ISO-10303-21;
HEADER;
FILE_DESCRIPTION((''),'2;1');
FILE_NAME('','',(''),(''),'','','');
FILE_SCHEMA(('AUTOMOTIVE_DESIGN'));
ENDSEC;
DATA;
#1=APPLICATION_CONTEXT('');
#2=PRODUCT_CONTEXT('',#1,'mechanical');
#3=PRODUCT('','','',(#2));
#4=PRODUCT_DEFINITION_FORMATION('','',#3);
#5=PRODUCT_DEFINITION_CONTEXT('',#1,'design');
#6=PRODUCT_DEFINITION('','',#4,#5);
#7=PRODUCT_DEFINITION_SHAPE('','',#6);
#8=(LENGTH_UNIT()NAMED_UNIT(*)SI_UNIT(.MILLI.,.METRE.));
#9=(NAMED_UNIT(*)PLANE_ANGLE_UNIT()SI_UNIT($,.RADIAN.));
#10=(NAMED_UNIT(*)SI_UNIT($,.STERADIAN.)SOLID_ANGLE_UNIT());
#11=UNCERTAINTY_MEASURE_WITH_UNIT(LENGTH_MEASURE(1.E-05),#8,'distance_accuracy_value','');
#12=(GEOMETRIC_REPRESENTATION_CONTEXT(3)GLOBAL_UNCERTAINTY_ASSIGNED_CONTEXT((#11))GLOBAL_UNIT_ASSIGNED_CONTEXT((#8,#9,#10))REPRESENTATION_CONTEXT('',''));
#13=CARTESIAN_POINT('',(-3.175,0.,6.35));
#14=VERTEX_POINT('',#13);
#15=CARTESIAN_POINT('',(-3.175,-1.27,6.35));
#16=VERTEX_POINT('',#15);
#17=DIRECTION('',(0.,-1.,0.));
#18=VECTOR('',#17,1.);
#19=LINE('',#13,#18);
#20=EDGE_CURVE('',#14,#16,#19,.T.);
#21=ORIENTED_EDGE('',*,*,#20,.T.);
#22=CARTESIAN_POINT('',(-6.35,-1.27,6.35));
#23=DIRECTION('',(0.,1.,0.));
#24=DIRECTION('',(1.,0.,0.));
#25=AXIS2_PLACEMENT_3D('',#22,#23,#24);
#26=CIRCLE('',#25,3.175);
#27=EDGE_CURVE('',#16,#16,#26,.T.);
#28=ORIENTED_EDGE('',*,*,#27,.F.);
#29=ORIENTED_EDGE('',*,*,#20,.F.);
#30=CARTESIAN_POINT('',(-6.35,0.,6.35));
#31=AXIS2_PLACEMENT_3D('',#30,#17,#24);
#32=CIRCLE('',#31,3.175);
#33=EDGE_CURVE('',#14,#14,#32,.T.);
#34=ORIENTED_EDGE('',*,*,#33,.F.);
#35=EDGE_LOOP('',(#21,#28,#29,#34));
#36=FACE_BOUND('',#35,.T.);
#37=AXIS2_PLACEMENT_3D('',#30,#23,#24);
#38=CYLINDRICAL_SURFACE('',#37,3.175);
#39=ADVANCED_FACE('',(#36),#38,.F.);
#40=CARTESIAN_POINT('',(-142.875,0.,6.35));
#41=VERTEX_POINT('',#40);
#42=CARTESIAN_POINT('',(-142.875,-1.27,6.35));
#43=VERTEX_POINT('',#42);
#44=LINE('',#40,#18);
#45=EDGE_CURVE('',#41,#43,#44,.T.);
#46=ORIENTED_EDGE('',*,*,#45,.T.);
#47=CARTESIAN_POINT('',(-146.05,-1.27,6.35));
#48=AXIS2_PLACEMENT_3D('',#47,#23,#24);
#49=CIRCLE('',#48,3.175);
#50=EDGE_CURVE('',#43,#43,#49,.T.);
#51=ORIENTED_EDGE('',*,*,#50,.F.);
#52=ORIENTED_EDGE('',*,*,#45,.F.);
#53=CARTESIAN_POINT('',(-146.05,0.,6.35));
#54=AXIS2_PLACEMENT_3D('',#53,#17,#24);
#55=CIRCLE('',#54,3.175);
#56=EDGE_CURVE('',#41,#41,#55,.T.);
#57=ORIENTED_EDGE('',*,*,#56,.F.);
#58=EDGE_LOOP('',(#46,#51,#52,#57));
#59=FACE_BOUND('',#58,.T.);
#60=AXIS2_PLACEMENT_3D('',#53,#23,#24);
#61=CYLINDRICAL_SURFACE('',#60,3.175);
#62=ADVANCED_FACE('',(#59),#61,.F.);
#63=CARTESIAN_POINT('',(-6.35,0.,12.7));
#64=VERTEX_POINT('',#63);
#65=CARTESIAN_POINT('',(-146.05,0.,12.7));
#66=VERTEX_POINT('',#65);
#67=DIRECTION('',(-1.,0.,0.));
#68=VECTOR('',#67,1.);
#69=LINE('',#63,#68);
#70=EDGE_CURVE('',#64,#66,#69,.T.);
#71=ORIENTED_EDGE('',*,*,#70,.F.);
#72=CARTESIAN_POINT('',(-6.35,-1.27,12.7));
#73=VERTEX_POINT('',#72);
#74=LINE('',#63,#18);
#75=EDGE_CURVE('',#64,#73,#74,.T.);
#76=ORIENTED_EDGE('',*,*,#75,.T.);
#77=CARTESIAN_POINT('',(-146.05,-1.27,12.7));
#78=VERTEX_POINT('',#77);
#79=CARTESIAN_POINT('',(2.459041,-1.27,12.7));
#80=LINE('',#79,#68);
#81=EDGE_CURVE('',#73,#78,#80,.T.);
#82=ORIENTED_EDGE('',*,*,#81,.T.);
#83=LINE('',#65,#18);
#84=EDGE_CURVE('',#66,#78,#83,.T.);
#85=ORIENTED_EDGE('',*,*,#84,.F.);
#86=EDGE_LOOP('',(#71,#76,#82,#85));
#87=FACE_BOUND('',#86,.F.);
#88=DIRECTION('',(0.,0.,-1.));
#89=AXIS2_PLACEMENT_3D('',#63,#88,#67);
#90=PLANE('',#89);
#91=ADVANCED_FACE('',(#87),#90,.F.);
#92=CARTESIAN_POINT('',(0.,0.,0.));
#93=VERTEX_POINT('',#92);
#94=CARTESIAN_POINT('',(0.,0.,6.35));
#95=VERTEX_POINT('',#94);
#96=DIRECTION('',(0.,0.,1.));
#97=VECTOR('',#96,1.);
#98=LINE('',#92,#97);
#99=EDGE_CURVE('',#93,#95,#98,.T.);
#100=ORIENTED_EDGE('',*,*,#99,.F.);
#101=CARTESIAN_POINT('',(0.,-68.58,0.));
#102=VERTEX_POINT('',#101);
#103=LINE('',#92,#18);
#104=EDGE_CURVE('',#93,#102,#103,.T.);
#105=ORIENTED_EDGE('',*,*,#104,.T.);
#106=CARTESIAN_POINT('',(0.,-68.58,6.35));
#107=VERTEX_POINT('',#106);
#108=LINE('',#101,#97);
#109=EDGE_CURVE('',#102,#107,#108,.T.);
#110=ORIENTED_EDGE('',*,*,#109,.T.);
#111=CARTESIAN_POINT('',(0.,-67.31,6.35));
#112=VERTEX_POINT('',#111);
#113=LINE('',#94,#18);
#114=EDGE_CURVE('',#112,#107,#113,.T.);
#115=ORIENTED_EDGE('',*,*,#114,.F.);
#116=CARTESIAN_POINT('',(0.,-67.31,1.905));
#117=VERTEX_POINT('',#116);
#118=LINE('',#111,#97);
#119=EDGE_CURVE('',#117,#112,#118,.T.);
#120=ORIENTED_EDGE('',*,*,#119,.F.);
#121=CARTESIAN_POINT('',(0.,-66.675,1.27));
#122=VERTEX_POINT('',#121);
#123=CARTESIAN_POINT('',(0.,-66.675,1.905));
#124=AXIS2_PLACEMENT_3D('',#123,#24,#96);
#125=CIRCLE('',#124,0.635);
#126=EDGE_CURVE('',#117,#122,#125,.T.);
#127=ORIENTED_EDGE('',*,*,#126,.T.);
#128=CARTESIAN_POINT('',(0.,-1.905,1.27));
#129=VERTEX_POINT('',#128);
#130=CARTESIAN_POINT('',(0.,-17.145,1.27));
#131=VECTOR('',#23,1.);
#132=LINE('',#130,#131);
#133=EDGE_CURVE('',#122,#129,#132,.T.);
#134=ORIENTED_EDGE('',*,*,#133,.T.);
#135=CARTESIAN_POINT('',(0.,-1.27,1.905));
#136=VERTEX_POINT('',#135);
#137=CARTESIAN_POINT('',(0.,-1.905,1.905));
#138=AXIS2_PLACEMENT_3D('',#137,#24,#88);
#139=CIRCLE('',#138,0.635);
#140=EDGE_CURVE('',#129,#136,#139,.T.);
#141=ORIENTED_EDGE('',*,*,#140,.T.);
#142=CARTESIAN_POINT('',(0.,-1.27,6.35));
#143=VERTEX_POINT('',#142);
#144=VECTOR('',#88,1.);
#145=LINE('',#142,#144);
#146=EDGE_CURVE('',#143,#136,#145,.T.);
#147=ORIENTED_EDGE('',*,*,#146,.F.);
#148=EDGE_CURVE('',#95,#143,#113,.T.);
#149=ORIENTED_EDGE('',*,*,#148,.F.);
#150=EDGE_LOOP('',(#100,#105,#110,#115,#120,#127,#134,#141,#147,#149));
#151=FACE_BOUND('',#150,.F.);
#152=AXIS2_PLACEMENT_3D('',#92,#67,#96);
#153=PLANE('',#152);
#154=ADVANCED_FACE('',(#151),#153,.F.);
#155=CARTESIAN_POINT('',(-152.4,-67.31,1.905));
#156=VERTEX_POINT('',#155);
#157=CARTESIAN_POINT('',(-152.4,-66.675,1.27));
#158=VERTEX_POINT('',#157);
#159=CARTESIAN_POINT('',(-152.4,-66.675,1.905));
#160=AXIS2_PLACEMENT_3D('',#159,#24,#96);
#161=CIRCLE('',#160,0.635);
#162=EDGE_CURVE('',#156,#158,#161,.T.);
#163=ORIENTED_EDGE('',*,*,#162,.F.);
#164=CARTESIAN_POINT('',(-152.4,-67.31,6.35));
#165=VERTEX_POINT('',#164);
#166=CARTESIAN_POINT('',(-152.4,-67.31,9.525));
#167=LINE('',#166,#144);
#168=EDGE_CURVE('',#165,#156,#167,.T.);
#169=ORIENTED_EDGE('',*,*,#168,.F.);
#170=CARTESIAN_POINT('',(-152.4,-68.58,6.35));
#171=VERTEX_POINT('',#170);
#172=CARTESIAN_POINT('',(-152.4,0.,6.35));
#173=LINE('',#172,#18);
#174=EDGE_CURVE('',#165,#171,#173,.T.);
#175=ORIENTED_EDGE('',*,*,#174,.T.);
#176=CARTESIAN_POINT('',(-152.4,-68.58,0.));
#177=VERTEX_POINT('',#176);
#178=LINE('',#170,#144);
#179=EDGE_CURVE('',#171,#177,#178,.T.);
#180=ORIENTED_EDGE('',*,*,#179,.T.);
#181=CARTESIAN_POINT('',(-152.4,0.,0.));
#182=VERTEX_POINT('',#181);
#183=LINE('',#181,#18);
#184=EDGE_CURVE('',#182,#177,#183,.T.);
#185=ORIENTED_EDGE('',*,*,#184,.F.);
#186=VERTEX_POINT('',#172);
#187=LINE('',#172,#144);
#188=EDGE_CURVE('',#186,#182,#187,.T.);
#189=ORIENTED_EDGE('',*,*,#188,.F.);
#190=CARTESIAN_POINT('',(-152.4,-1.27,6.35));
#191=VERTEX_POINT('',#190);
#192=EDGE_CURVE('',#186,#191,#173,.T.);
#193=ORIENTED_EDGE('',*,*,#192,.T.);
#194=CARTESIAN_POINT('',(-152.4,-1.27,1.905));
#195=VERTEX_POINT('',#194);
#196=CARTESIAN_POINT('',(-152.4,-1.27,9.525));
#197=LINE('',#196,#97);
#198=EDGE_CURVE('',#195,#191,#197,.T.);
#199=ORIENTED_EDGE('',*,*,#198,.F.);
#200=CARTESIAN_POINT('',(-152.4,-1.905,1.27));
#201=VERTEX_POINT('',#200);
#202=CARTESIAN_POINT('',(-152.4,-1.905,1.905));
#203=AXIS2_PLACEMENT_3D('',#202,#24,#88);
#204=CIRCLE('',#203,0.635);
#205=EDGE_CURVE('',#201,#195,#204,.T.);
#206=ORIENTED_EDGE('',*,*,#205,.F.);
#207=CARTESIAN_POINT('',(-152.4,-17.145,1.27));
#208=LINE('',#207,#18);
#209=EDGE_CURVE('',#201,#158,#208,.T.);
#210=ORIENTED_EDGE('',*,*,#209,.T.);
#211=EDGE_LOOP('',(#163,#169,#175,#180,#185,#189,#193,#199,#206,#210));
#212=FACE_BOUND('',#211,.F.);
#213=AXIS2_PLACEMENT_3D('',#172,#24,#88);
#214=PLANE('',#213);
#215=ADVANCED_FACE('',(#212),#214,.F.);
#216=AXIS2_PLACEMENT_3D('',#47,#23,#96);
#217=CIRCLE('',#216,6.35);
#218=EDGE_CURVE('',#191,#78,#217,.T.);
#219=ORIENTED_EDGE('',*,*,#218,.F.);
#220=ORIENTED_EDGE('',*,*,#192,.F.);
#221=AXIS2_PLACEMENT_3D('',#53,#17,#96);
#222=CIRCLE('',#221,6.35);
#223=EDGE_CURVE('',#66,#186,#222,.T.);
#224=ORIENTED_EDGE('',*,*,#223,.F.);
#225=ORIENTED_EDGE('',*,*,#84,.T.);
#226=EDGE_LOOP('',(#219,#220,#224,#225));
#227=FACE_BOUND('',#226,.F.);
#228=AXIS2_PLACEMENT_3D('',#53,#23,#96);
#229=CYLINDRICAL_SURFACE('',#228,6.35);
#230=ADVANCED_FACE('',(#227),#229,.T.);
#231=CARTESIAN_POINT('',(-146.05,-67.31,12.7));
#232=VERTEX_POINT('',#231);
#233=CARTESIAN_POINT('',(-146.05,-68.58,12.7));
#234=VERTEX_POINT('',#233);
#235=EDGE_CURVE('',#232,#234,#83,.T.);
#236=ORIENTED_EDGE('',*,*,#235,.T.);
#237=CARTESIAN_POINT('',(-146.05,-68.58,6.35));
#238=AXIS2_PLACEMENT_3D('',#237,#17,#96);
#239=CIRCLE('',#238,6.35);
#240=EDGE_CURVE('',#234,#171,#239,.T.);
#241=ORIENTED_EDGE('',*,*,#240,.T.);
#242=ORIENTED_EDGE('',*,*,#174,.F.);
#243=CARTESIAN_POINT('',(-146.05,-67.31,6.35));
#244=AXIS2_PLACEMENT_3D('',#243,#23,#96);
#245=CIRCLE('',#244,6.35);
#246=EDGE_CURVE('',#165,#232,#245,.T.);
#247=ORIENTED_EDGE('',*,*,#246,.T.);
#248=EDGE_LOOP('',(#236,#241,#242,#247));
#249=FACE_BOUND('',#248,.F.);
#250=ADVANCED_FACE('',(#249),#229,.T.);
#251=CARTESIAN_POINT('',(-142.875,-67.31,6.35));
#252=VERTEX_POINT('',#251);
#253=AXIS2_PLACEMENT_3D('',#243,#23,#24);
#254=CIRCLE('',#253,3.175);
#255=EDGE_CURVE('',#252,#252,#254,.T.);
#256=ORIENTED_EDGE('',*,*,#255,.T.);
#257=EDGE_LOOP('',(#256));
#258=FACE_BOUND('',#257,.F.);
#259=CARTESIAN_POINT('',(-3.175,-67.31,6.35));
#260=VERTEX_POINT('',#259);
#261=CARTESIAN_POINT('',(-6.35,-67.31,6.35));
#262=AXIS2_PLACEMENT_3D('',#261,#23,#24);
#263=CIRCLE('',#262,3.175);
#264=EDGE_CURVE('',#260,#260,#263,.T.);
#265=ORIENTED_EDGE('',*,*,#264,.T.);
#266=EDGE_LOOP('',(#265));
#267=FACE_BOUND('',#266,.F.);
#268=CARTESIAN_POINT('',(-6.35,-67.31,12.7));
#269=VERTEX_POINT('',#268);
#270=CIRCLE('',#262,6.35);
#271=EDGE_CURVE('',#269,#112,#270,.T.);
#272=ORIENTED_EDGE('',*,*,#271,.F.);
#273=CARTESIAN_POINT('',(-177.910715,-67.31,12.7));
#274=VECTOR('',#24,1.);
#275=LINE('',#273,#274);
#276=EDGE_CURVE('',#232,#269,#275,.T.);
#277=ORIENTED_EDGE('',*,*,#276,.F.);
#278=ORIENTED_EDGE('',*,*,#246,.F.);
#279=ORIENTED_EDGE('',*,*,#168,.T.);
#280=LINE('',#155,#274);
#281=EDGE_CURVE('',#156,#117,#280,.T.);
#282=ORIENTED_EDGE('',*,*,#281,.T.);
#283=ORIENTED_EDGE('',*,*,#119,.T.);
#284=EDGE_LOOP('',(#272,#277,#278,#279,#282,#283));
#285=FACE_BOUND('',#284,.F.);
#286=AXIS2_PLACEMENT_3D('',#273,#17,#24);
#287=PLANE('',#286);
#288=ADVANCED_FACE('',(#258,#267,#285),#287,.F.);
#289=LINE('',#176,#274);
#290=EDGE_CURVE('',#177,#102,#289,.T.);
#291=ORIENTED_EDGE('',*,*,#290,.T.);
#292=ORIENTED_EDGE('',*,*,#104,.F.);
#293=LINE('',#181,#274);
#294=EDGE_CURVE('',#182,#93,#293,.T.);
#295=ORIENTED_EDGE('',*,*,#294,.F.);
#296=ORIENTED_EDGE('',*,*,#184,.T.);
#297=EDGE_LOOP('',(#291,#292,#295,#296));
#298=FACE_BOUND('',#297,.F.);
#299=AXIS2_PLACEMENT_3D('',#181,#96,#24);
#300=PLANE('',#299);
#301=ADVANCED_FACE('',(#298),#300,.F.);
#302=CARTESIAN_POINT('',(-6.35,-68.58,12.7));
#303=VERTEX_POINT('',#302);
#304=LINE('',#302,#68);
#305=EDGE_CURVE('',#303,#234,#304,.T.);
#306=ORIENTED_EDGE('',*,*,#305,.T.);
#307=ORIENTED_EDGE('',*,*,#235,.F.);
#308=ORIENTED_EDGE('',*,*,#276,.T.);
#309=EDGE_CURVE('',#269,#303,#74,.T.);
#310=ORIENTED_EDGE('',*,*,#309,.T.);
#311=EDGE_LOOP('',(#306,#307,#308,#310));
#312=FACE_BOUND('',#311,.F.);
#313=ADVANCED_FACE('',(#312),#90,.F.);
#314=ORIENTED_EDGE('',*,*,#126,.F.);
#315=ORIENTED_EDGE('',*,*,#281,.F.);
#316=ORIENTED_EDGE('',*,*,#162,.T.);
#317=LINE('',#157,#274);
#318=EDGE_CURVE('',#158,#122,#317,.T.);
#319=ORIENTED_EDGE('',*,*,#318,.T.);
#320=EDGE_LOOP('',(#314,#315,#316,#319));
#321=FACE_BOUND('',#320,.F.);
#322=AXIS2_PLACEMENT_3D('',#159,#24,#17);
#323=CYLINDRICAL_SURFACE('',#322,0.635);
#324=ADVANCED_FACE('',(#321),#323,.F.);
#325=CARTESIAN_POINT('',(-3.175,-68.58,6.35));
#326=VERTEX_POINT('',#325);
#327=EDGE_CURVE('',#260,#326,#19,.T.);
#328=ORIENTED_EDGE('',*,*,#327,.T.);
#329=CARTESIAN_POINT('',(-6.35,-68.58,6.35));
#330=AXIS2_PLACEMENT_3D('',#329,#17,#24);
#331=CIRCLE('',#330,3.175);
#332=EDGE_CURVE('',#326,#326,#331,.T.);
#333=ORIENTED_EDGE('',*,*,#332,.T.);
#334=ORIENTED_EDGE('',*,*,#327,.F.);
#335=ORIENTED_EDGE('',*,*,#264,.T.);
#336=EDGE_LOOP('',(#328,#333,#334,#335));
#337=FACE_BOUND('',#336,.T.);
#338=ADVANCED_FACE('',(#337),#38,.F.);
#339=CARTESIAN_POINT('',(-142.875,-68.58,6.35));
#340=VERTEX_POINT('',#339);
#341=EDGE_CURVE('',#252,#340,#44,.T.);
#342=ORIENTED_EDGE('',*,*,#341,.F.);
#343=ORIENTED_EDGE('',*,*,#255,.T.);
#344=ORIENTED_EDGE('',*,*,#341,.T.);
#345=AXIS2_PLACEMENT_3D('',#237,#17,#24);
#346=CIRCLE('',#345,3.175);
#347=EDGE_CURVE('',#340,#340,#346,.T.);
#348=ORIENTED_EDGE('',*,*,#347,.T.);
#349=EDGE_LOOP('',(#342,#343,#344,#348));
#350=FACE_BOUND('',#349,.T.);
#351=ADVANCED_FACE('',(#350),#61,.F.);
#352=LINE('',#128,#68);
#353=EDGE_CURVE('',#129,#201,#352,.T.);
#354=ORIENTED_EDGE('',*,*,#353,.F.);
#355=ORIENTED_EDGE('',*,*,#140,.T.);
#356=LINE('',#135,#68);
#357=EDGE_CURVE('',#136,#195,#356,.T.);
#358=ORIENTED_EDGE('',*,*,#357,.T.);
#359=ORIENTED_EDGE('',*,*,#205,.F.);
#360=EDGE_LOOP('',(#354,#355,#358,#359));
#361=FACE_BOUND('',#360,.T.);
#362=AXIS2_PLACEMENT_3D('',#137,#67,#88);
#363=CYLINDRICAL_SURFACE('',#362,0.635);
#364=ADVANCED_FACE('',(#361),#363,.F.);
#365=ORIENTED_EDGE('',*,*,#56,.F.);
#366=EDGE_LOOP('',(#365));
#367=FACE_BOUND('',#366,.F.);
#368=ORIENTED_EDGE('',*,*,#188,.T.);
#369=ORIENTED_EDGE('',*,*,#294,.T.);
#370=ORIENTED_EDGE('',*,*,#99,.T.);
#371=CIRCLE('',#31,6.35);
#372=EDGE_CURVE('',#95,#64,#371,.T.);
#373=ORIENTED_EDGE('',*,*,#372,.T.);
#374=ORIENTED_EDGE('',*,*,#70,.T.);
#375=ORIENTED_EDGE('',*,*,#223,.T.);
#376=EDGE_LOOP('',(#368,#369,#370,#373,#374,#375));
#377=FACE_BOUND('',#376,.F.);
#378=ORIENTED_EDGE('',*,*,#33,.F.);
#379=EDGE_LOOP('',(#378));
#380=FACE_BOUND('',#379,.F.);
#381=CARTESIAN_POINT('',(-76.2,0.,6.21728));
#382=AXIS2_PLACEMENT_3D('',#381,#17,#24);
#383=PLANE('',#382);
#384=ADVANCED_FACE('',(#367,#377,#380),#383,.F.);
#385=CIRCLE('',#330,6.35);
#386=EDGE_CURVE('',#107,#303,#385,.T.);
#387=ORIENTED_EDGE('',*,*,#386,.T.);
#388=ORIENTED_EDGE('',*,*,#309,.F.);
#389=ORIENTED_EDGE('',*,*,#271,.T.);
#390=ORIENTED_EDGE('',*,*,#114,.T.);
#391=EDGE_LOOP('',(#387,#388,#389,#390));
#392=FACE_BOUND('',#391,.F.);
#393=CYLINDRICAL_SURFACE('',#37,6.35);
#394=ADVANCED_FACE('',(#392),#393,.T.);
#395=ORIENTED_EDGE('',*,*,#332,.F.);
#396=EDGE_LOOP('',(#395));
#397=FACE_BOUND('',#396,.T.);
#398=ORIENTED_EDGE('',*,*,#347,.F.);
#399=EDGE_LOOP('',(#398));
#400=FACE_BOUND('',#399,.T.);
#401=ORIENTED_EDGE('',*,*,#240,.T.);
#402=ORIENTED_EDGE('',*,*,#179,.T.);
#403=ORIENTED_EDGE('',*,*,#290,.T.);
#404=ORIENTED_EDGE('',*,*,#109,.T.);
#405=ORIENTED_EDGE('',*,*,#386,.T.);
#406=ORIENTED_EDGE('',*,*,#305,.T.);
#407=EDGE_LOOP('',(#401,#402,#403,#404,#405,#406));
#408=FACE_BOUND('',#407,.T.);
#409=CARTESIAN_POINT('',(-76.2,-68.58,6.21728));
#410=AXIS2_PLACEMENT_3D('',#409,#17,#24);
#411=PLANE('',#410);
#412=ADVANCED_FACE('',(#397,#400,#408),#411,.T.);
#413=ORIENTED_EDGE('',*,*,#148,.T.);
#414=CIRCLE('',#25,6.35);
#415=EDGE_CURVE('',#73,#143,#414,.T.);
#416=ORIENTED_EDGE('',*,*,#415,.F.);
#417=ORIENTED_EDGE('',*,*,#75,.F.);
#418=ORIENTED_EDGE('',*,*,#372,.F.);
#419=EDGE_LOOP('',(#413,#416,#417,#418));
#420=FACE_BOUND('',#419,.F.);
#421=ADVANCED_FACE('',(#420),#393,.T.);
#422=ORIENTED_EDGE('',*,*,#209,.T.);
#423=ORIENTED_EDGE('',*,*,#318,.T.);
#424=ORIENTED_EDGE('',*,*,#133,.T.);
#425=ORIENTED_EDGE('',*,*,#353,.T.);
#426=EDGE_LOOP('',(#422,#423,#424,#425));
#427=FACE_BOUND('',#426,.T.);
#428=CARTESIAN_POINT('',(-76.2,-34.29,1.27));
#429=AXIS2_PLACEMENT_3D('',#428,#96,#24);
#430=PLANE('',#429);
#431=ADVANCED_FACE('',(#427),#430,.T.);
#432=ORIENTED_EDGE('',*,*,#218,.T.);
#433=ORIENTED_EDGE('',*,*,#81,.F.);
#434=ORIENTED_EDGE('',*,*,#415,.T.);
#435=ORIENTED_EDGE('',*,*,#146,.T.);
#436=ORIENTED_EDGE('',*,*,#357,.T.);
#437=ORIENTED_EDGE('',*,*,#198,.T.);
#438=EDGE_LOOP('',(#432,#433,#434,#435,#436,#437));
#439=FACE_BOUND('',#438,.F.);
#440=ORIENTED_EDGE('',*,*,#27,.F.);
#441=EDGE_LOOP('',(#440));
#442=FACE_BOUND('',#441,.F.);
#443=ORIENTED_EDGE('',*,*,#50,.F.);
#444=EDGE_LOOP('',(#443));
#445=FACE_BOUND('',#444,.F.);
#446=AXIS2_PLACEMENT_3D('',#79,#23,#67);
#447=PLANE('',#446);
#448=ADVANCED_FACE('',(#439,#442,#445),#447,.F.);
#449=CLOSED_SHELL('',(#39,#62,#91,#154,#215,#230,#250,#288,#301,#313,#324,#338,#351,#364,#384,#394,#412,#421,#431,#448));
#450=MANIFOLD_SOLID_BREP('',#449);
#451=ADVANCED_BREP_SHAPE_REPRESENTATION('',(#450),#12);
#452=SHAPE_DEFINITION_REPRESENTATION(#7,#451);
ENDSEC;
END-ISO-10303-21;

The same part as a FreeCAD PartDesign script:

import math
import FreeCAD as App
import Part
import Sketcher

V = App.Vector
Q = App.Units.Quantity


def edges_at(feature, points):
    """Names of the edges that pass closest to the given points."""
    edges = feature.Shape.Edges
    near = lambda p: min(range(len(edges)), key=lambda i: edges[i].distToShape(Part.Vertex(*p))[0])
    return sorted({f"Edge{near(p) + 1}" for p in points})

doc = App.newDocument("Part")
body = doc.addObject("PartDesign::Body", "Body")

# Sketch on XZ plane
sketch1 = doc.addObject("Sketcher::SketchObject", "Sketch")
body.addObject(sketch1)
sketch1.AttachmentSupport = (doc.XZ_Plane, [""])
sketch1.MapMode = "FlatFace"
sketch1.addGeometry([
    Part.LineSegment(V(-152.4, 0, 0), V(0, 0, 0)),  # 0
    Part.LineSegment(V(0, 0, 0), V(0, 6.3, 0)),  # 1
    Part.ArcOfCircle(Part.Circle(V(-6.3, 6.3, 0), V(0, 0, 1), 6.3), math.radians(0), math.radians(90)),  # 2
    Part.LineSegment(V(-6.3, 12.7, 0), V(-146.1, 12.7, 0)),  # 3
    Part.ArcOfCircle(Part.Circle(V(-146.1, 6.3, 0), V(0, 0, 1), 6.3), math.radians(90), math.radians(180)),  # 4
    Part.LineSegment(V(-152.4, 6.3, 0), V(-152.4, 0, 0)),  # 5
    Part.Circle(V(-146.1, 6.3, 0), V(0, 0, 1), 3.2),  # 6
    Part.Circle(V(-6.3, 6.3, 0), V(0, 0, 1), 3.2),  # 7
], False)
sketch1.addConstraint([
    Sketcher.Constraint("Coincident", 0, 2, 1, 1),
    Sketcher.Constraint("Tangent", 1, 2, 2, 1),
    Sketcher.Constraint("Tangent", 2, 2, 3, 1),
    Sketcher.Constraint("Tangent", 3, 2, 4, 1),
    Sketcher.Constraint("Tangent", 4, 2, 5, 1),
    Sketcher.Constraint("Coincident", 5, 2, 0, 1),
    Sketcher.Constraint("Horizontal", 0),
    Sketcher.Constraint("Vertical", 1),
    Sketcher.Constraint("Horizontal", 3),
    Sketcher.Constraint("Vertical", 5),
    Sketcher.Constraint("Coincident", 0, 2, -1, 1),
    Sketcher.Constraint("Coincident", 6, 3, 4, 3),
    Sketcher.Constraint("Coincident", 7, 3, 2, 3),
    Sketcher.Constraint("Equal", 2, 4),
    Sketcher.Constraint("Equal", 6, 7),
    Sketcher.Constraint("Diameter", 6, Q("0.25 in")),
    Sketcher.Constraint("DistanceX", 0, 1, 0, 2, Q("6 in")),
    Sketcher.Constraint("Radius", 2, Q("0.25 in")),
    Sketcher.Constraint("DistanceY", 1, 1, 1, 2, Q("0.25 in")),
])
pad1 = doc.addObject("PartDesign::Pad", "Pad")
body.addObject(pad1)
pad1.Profile = sketch1
pad1.Length = Q("2.7 in")

# Sketch on XY plane
sketch2 = doc.addObject("Sketcher::SketchObject", "Sketch001")
body.addObject(sketch2)
sketch2.AttachmentSupport = (doc.XY_Plane, [""])
sketch2.MapMode = "FlatFace"
sketch2.AttachmentOffset = App.Placement(V(0, 0, 0.5 * 25.4), App.Rotation())
sketch2.addGeometry([
    Part.LineSegment(V(-178, -1, 0), V(-178, -67, 0)),
    Part.LineSegment(V(-178, -67, 0), V(2, -67, 0)),
    Part.LineSegment(V(2, -67, 0), V(2, -1, 0)),
    Part.LineSegment(V(2, -1, 0), V(-178, -1, 0)),
], False)
sketch2.addConstraint([
    Sketcher.Constraint("Coincident", 0, 2, 1, 1),
    Sketcher.Constraint("Coincident", 1, 2, 2, 1),
    Sketcher.Constraint("Coincident", 2, 2, 3, 1),
    Sketcher.Constraint("Coincident", 3, 2, 0, 1),
    Sketcher.Constraint("Vertical", 0),
    Sketcher.Constraint("Horizontal", 1),
    Sketcher.Constraint("Vertical", 2),
    Sketcher.Constraint("Horizontal", 3),
    Sketcher.Constraint("DistanceY", 0, 2, 0, 1, Q("2.6 in")),
    Sketcher.Constraint("DistanceY", 0, 2, -1, 1, Q("2.65 in")),
    Sketcher.Constraint("DistanceX", 1, 1, 1, 2, 180.369756),
    Sketcher.Constraint("DistanceX", -1, 1, 1, 2, 2.459041),
])
pocket1 = doc.addObject("PartDesign::Pocket", "Pocket")
body.addObject(pocket1)
pocket1.Profile = sketch2
pocket1.Length = Q("0.45 in")
doc.recompute()

fillet = doc.addObject("PartDesign::Fillet", "Fillet")
body.addObject(fillet)
fillet.Base = (pocket1, edges_at(pocket1, [(-76.2, -1.27, 1.27), (-76.2, -67.31, 1.27)]))
fillet.Radius = Q("0.025 in")

doc.recompute()
